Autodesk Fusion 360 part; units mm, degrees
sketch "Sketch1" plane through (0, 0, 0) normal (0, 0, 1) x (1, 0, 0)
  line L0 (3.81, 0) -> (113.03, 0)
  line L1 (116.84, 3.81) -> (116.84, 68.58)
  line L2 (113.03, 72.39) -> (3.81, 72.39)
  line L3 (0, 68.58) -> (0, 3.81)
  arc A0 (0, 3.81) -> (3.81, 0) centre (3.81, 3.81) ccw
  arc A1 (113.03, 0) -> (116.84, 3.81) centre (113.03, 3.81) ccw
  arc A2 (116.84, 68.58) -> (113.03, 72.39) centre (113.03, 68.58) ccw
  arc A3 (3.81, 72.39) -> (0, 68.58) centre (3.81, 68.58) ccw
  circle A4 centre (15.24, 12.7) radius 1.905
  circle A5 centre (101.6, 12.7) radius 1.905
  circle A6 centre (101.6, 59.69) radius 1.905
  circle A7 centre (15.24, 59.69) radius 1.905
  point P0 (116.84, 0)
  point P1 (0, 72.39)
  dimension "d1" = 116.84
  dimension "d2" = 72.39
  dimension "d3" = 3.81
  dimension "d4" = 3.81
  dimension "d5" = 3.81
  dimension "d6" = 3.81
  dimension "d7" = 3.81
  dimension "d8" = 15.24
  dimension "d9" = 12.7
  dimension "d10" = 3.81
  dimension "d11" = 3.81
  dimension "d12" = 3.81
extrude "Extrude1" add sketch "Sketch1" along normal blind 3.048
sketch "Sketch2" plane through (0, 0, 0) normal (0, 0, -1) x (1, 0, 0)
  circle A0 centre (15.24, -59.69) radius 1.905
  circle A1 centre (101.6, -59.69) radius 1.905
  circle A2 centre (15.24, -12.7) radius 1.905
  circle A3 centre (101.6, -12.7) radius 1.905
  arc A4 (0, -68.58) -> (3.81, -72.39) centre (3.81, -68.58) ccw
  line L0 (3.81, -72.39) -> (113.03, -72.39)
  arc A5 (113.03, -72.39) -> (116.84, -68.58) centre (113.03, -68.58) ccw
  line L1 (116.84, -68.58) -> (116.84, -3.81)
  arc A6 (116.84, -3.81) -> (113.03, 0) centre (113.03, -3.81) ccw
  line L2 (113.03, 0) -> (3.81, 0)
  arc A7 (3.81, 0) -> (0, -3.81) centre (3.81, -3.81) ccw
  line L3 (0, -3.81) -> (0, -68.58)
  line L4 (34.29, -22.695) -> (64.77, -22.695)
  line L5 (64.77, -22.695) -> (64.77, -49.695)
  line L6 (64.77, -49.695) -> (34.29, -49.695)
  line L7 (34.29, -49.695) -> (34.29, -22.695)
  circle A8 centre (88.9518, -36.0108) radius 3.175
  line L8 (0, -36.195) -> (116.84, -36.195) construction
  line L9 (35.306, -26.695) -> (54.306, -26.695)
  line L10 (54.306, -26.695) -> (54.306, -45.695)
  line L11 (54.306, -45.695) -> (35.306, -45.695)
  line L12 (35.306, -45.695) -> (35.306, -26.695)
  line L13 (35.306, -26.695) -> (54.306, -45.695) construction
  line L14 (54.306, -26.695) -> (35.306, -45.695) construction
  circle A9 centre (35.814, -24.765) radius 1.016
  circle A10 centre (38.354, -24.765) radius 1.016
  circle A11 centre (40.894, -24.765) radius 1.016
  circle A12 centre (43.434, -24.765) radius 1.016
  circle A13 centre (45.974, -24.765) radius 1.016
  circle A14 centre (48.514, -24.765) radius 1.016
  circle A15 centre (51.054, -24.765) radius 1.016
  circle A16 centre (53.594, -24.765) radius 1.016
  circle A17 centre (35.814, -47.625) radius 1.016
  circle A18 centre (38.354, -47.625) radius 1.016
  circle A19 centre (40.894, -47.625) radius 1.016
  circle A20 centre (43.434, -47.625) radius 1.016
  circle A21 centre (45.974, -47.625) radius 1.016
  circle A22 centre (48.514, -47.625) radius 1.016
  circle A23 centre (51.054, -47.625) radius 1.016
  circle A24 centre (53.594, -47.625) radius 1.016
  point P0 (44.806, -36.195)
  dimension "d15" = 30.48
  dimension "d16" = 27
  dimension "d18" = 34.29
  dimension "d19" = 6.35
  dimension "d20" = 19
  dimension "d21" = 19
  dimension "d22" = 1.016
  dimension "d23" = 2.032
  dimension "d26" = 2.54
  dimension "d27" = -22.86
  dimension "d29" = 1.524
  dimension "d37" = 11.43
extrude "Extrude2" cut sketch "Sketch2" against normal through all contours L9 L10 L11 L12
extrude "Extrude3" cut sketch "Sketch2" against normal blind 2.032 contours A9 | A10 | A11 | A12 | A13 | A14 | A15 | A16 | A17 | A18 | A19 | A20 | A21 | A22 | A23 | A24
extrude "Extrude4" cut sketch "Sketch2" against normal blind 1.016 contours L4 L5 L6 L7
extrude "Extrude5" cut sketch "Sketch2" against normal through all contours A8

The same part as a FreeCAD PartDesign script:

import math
import FreeCAD as App
import Part
import Sketcher

V = App.Vector
Q = App.Units.Quantity

doc = App.newDocument("Part")
body = doc.addObject("PartDesign::Body", "Body")

# Sketch on XY plane
sketch1 = body.newObject("Sketcher::SketchObject", "Sketch")
sketch1.AttachmentSupport = (doc.getObject("XY_Plane"), [""])
sketch1.MapMode = "FlatFace"
sketch1.addGeometry([
    Part.ArcOfCircle(Part.Circle(V(3.8, 3.8, 0), V(0, 0, 1), 3.8), math.radians(180), math.radians(270)),  # 0
    Part.LineSegment(V(3.8, 0, 0), V(113, 0, 0)),  # 1
    Part.ArcOfCircle(Part.Circle(V(113, 3.8, 0), V(0, 0, 1), 3.8), math.radians(-90), math.radians(0)),  # 2
    Part.LineSegment(V(116.8, 3.8, 0), V(116.8, 68.6, 0)),  # 3
    Part.ArcOfCircle(Part.Circle(V(113, 68.6, 0), V(0, 0, 1), 3.8), math.radians(0), math.radians(90)),  # 4
    Part.LineSegment(V(113, 72.4, 0), V(3.8, 72.4, 0)),  # 5
    Part.ArcOfCircle(Part.Circle(V(3.8, 68.6, 0), V(0, 0, 1), 3.8), math.radians(90), math.radians(180)),  # 6
    Part.LineSegment(V(0, 68.6, 0), V(0, 3.8, 0)),  # 7
    Part.Circle(V(15.2, 12.7, 0), V(0, 0, 1), 1.9),  # 8
    Part.Circle(V(101.6, 12.7, 0), V(0, 0, 1), 1.9),  # 9
    Part.Circle(V(15.2, 59.7, 0), V(0, 0, 1), 1.9),  # 10
    Part.Circle(V(101.6, 59.7, 0), V(0, 0, 1), 1.9),  # 11
], False)
sketch1.addConstraint([
    Sketcher.Constraint("Tangent", 0, 2, 1, 1),
    Sketcher.Constraint("Tangent", 1, 2, 2, 1),
    Sketcher.Constraint("Tangent", 2, 2, 3, 1),
    Sketcher.Constraint("Tangent", 3, 2, 4, 1),
    Sketcher.Constraint("Tangent", 4, 2, 5, 1),
    Sketcher.Constraint("Tangent", 5, 2, 6, 1),
    Sketcher.Constraint("Tangent", 6, 2, 7, 1),
    Sketcher.Constraint("Tangent", 7, 2, 0, 1),
    Sketcher.Constraint("Horizontal", 1),
    Sketcher.Constraint("Vertical", 3),
    Sketcher.Constraint("Horizontal", 5),
    Sketcher.Constraint("Vertical", 7),
    Sketcher.Constraint("Equal", 0, 2),
    Sketcher.Constraint("Equal", 2, 4),
    Sketcher.Constraint("Equal", 4, 6),
    Sketcher.Constraint("Equal", 8, 9),
    Sketcher.Constraint("Equal", 9, 10),
    Sketcher.Constraint("Equal", 10, 11),
    Sketcher.Constraint("PointOnObject", 0, 2, -1),
    Sketcher.Constraint("PointOnObject", 6, 2, -2),
    Sketcher.Constraint("Horizontal", 8, 3, 9, 3),
    Sketcher.Constraint("Horizontal", 10, 3, 11, 3),
    Sketcher.Constraint("Vertical", 8, 3, 10, 3),
    Sketcher.Constraint("Vertical", 9, 3, 11, 3),
    Sketcher.Constraint("Diameter", 8, Q("0.15 in")),
    Sketcher.Constraint("Radius", 0, Q("0.15 in")),
    Sketcher.Constraint("DistanceX", -1, 1, 8, 3, Q("0.6 in")),
    Sketcher.Constraint("DistanceY", -1, 1, 8, 3, Q("0.5 in")),
    Sketcher.Constraint("DistanceX", -1, 1, 2, 2, Q("4.6 in")),
    Sketcher.Constraint("DistanceX", 9, 3, 2, 2, Q("0.6 in")),
    Sketcher.Constraint("DistanceY", 11, 3, 4, 2, Q("0.5 in")),
    Sketcher.Constraint("DistanceY", -1, 1, 4, 2, Q("2.85 in")),
])
pad1 = body.newObject("PartDesign::Pad", "Pad")
pad1.Profile = sketch1
pad1.Length = Q("0.12 in")

# Sketch on XY plane
sketch2 = body.newObject("Sketcher::SketchObject", "Sketch001")
sketch2.AttachmentSupport = (doc.getObject("XY_Plane"), [""])
sketch2.MapMode = "FlatFace"
sketch2.addGeometry([
    Part.LineSegment(V(54, 27, 0), V(35, 27, 0)),
    Part.LineSegment(V(35, 27, 0), V(35, 46, 0)),
    Part.LineSegment(V(35, 46, 0), V(54, 46, 0)),
    Part.LineSegment(V(54, 46, 0), V(54, 27, 0)),
], False)
sketch2.addConstraint([
    Sketcher.Constraint("Coincident", 0, 2, 1, 1),
    Sketcher.Constraint("Coincident", 1, 2, 2, 1),
    Sketcher.Constraint("Coincident", 2, 2, 3, 1),
    Sketcher.Constraint("Coincident", 3, 2, 0, 1),
    Sketcher.Constraint("Horizontal", 0),
    Sketcher.Constraint("Vertical", 1),
    Sketcher.Constraint("Horizontal", 2),
    Sketcher.Constraint("Vertical", 3),
    Sketcher.Constraint("Equal", 2, 1),
    Sketcher.Constraint("DistanceX", 0, 2, 0, 1, Q("19 mm")),
    Sketcher.Constraint("DistanceX", -1, 1, 0, 2, Q("1.39 in")),
    Sketcher.Constraint("DistanceY", -1, 1, 0, 2, Q("26.695 mm")),
])
pocket1 = body.newObject("PartDesign::Pocket", "Pocket")
pocket1.Profile = sketch2
pocket1.Type = "ThroughAll"
pocket1.Reversed = True

# Sketch on XY plane
sketch3 = body.newObject("Sketcher::SketchObject", "Sketch002")
sketch3.AttachmentSupport = (doc.getObject("XY_Plane"), [""])
sketch3.MapMode = "FlatFace"
sketch3.addGeometry([
    Part.Circle(V(35.8, 24.8, 0), V(0, 0, 1), 1),  # 0
    Part.Circle(V(38.4, 24.8, 0), V(0, 0, 1), 1),  # 1
    Part.Circle(V(40.9, 24.8, 0), V(0, 0, 1), 1),  # 2
    Part.Circle(V(43.4, 24.8, 0), V(0, 0, 1), 1),  # 3
    Part.Circle(V(46, 24.8, 0), V(0, 0, 1), 1),  # 4
    Part.Circle(V(48.5, 24.8, 0), V(0, 0, 1), 1),  # 5
    Part.Circle(V(51.1, 24.8, 0), V(0, 0, 1), 1),  # 6
    Part.Circle(V(53.6, 24.8, 0), V(0, 0, 1), 1),  # 7
    Part.Circle(V(35.8, 47.6, 0), V(0, 0, 1), 1),  # 8
    Part.Circle(V(38.4, 47.6, 0), V(0, 0, 1), 1),  # 9
    Part.Circle(V(40.9, 47.6, 0), V(0, 0, 1), 1),  # 10
    Part.Circle(V(43.4, 47.6, 0), V(0, 0, 1), 1),  # 11
    Part.Circle(V(46, 47.6, 0), V(0, 0, 1), 1),  # 12
    Part.Circle(V(48.5, 47.6, 0), V(0, 0, 1), 1),  # 13
    Part.Circle(V(51.1, 47.6, 0), V(0, 0, 1), 1),  # 14
    Part.Circle(V(53.6, 47.6, 0), V(0, 0, 1), 1),  # 15
], False)
sketch3.addConstraint([
    Sketcher.Constraint("Equal", 0, 1),
    Sketcher.Constraint("Equal", 1, 2),
    Sketcher.Constraint("Equal", 2, 3),
    Sketcher.Constraint("Equal", 3, 4),
    Sketcher.Constraint("Equal", 4, 5),
    Sketcher.Constraint("Equal", 5, 6),
    Sketcher.Constraint("Equal", 6, 7),
    Sketcher.Constraint("Equal", 7, 8),
    Sketcher.Constraint("Equal", 8, 9),
    Sketcher.Constraint("Equal", 9, 10),
    Sketcher.Constraint("Equal", 10, 11),
    Sketcher.Constraint("Equal", 11, 12),
    Sketcher.Constraint("Equal", 12, 13),
    Sketcher.Constraint("Equal", 13, 14),
    Sketcher.Constraint("Equal", 14, 15),
    Sketcher.Constraint("Horizontal", 0, 3, 1, 3),
    Sketcher.Constraint("Horizontal", 1, 3, 2, 3),
    Sketcher.Constraint("Horizontal", 2, 3, 3, 3),
    Sketcher.Constraint("Horizontal", 3, 3, 4, 3),
    Sketcher.Constraint("Horizontal", 4, 3, 5, 3),
    Sketcher.Constraint("Horizontal", 5, 3, 6, 3),
    Sketcher.Constraint("Horizontal", 6, 3, 7, 3),
    Sketcher.Constraint("Horizontal", 8, 3, 9, 3),
    Sketcher.Constraint("Horizontal", 9, 3, 10, 3),
    Sketcher.Constraint("Horizontal", 10, 3, 11, 3),
    Sketcher.Constraint("Horizontal", 11, 3, 12, 3),
    Sketcher.Constraint("Horizontal", 12, 3, 13, 3),
    Sketcher.Constraint("Horizontal", 13, 3, 14, 3),
    Sketcher.Constraint("Horizontal", 14, 3, 15, 3),
    Sketcher.Constraint("Vertical", 0, 3, 8, 3),
    Sketcher.Constraint("Vertical", 1, 3, 9, 3),
    Sketcher.Constraint("Vertical", 2, 3, 10, 3),
    Sketcher.Constraint("Vertical", 3, 3, 11, 3),
    Sketcher.Constraint("Vertical", 4, 3, 12, 3),
    Sketcher.Constraint("Vertical", 5, 3, 13, 3),
    Sketcher.Constraint("Vertical", 6, 3, 14, 3),
    Sketcher.Constraint("Vertical", 7, 3, 15, 3),
    Sketcher.Constraint("Diameter", 0, Q("0.08 in")),
    Sketcher.Constraint("DistanceX", 0, 3, 1, 3, Q("0.1 in")),
    Sketcher.Constraint("DistanceX", 1, 3, 2, 3, Q("0.1 in")),
    Sketcher.Constraint("DistanceX", 2, 3, 3, 3, Q("0.1 in")),
    Sketcher.Constraint("DistanceX", 3, 3, 4, 3, Q("0.1 in")),
    Sketcher.Constraint("DistanceX", 4, 3, 5, 3, Q("0.1 in")),
    Sketcher.Constraint("DistanceX", 5, 3, 6, 3, Q("0.1 in")),
    Sketcher.Constraint("DistanceX", 6, 3, 7, 3, Q("0.1 in")),
    Sketcher.Constraint("DistanceY", 0, 3, 8, 3, Q("0.9 in")),
    Sketcher.Constraint("DistanceX", -1, 1, 0, 3, Q("1.41 in")),
    Sketcher.Constraint("DistanceY", -1, 1, 0, 3, Q("0.975 in")),
])
pocket2 = body.newObject("PartDesign::Pocket", "Pocket001")
pocket2.Profile = sketch3
pocket2.Length = Q("0.08 in")
pocket2.Reversed = True

# Sketch on XY plane
sketch4 = body.newObject("Sketcher::SketchObject", "Sketch003")
sketch4.AttachmentSupport = (doc.getObject("XY_Plane"), [""])
sketch4.MapMode = "FlatFace"
sketch4.addGeometry([
    Part.LineSegment(V(64.8, 22.7, 0), V(34.3, 22.7, 0)),  # 0
    Part.LineSegment(V(34.3, 22.7, 0), V(34.3, 49.7, 0)),  # 1
    Part.LineSegment(V(34.3, 49.7, 0), V(64.8, 49.7, 0)),  # 2
    Part.LineSegment(V(64.8, 49.7, 0), V(64.8, 22.7, 0)),  # 3
    Part.Circle(V(35.8, 47.6, 0), V(0, 0, 1), 1),  # 4
    Part.Circle(V(38.4, 47.6, 0), V(0, 0, 1), 1),  # 5
    Part.Circle(V(40.9, 47.6, 0), V(0, 0, 1), 1),  # 6
    Part.Circle(V(43.4, 47.6, 0), V(0, 0, 1), 1),  # 7
    Part.Circle(V(46, 47.6, 0), V(0, 0, 1), 1),  # 8
    Part.Circle(V(48.5, 47.6, 0), V(0, 0, 1), 1),  # 9
    Part.Circle(V(51.1, 47.6, 0), V(0, 0, 1), 1),  # 10
    Part.Circle(V(53.6, 47.6, 0), V(0, 0, 1), 1),  # 11
    Part.LineSegment(V(35.3, 45.7, 0), V(35.3, 26.7, 0)),  # 12
    Part.LineSegment(V(35.3, 26.7, 0), V(54.3, 26.7, 0)),  # 13
    Part.LineSegment(V(54.3, 26.7, 0), V(54.3, 45.7, 0)),  # 14
    Part.LineSegment(V(54.3, 45.7, 0), V(35.3, 45.7, 0)),  # 15
    Part.Circle(V(35.8, 24.8, 0), V(0, 0, 1), 1),  # 16
    Part.Circle(V(38.4, 24.8, 0), V(0, 0, 1), 1),  # 17
    Part.Circle(V(40.9, 24.8, 0), V(0, 0, 1), 1),  # 18
    Part.Circle(V(43.4, 24.8, 0), V(0, 0, 1), 1),  # 19
    Part.Circle(V(46, 24.8, 0), V(0, 0, 1), 1),  # 20
    Part.Circle(V(48.5, 24.8, 0), V(0, 0, 1), 1),  # 21
    Part.Circle(V(51.1, 24.8, 0), V(0, 0, 1), 1),  # 22
    Part.Circle(V(53.6, 24.8, 0), V(0, 0, 1), 1),  # 23
], False)
sketch4.addConstraint([
    Sketcher.Constraint("Coincident", 0, 2, 1, 1),
    Sketcher.Constraint("Coincident", 1, 2, 2, 1),
    Sketcher.Constraint("Coincident", 2, 2, 3, 1),
    Sketcher.Constraint("Coincident", 3, 2, 0, 1),
    Sketcher.Constraint("Coincident", 12, 2, 13, 1),
    Sketcher.Constraint("Coincident", 13, 2, 14, 1),
    Sketcher.Constraint("Coincident", 14, 2, 15, 1),
    Sketcher.Constraint("Coincident", 15, 2, 12, 1),
    Sketcher.Constraint("Horizontal", 0),
    Sketcher.Constraint("Vertical", 1),
    Sketcher.Constraint("Horizontal", 2),
    Sketcher.Constraint("Vertical", 3),
    Sketcher.Constraint("Vertical", 12),
    Sketcher.Constraint("Horizontal", 13),
    Sketcher.Constraint("Vertical", 14),
    Sketcher.Constraint("Horizontal", 15),
    Sketcher.Constraint("Equal", 4, 5),
    Sketcher.Constraint("Equal", 5, 6),
    Sketcher.Constraint("Equal", 6, 7),
    Sketcher.Constraint("Equal", 7, 8),
    Sketcher.Constraint("Equal", 8, 9),
    Sketcher.Constraint("Equal", 9, 10),
    Sketcher.Constraint("Equal", 10, 11),
    Sketcher.Constraint("Equal", 11, 16),
    Sketcher.Constraint("Equal", 16, 17),
    Sketcher.Constraint("Equal", 17, 18),
    Sketcher.Constraint("Equal", 18, 19),
    Sketcher.Constraint("Equal", 19, 20),
    Sketcher.Constraint("Equal", 20, 21),
    Sketcher.Constraint("Equal", 21, 22),
    Sketcher.Constraint("Equal", 22, 23),
    Sketcher.Constraint("Horizontal", 4, 3, 5, 3),
    Sketcher.Constraint("Horizontal", 5, 3, 6, 3),
    Sketcher.Constraint("Horizontal", 6, 3, 7, 3),
    Sketcher.Constraint("Horizontal", 7, 3, 8, 3),
    Sketcher.Constraint("Horizontal", 8, 3, 9, 3),
    Sketcher.Constraint("Horizontal", 9, 3, 10, 3),
    Sketcher.Constraint("Horizontal", 10, 3, 11, 3),
    Sketcher.Constraint("Horizontal", 16, 3, 17, 3),
    Sketcher.Constraint("Horizontal", 17, 3, 18, 3),
    Sketcher.Constraint("Horizontal", 18, 3, 19, 3),
    Sketcher.Constraint("Horizontal", 19, 3, 20, 3),
    Sketcher.Constraint("Horizontal", 20, 3, 21, 3),
    Sketcher.Constraint("Horizontal", 21, 3, 22, 3),
    Sketcher.Constraint("Horizontal", 22, 3, 23, 3),
    Sketcher.Constraint("Vertical", 4, 3, 16, 3),
    Sketcher.Constraint("Vertical", 5, 3, 17, 3),
    Sketcher.Constraint("Vertical", 6, 3, 18, 3),
    Sketcher.Constraint("Vertical", 7, 3, 19, 3),
    Sketcher.Constraint("Vertical", 8, 3, 20, 3),
    Sketcher.Constraint("Vertical", 9, 3, 21, 3),
    Sketcher.Constraint("Vertical", 10, 3, 22, 3),
    Sketcher.Constraint("Vertical", 11, 3, 23, 3),
    Sketcher.Constraint("Equal", 15, 12),
    Sketcher.Constraint("Diameter", 4, Q("0.08 in")),
    Sketcher.Constraint("DistanceX", 0, 2, 0, 1, Q("1.2 in")),
    Sketcher.Constraint("DistanceX", 4, 3, 5, 3, Q("0.1 in")),
    Sketcher.Constraint("DistanceX", 5, 3, 6, 3, Q("0.1 in")),
    Sketcher.Constraint("DistanceX", 6, 3, 7, 3, Q("0.1 in")),
    Sketcher.Constraint("DistanceX", 7, 3, 8, 3, Q("0.1 in")),
    Sketcher.Constraint("DistanceX", 8, 3, 9, 3, Q("0.1 in")),
    Sketcher.Constraint("DistanceX", 9, 3, 10, 3, Q("0.1 in")),
    Sketcher.Constraint("DistanceX", 10, 3, 11, 3, Q("0.1 in")),
    Sketcher.Constraint("DistanceY", 16, 3, 4, 3, Q("0.9 in")),
    Sketcher.Constraint("DistanceY", 1, 1, 1, 2, Q("1.063 in")),
    Sketcher.Constraint("DistanceX", -1, 1, 0, 2, Q("1.35 in")),
    Sketcher.Constraint("DistanceX", 0, 2, 16, 3, Q("0.06 in")),
    Sketcher.Constraint("DistanceX", 0, 2, 12, 2, Q("0.04 in")),
    Sketcher.Constraint("DistanceX", 13, 1, 13, 2, Q("19 mm")),
    Sketcher.Constraint("DistanceY", -1, 1, 4, 3, Q("1.875 in")),
    Sketcher.Constraint("DistanceY", -1, 1, 0, 2, Q("0.8935 in")),
    Sketcher.Constraint("DistanceY", -1, 1, 12, 2, Q("26.695 mm")),
])
pocket3 = body.newObject("PartDesign::Pocket", "Pocket002")
pocket3.Profile = sketch4
pocket3.Length = Q("0.04 in")
pocket3.Reversed = True

# Sketch on XY plane
sketch5 = body.newObject("Sketcher::SketchObject", "Sketch004")
sketch5.AttachmentSupport = (doc.getObject("XY_Plane"), [""])
sketch5.MapMode = "FlatFace"
sketch5.addGeometry(Part.Circle(V(89, 36, 0), V(0, 0, 1), 3.2), False)
sketch5.addConstraint([
    Sketcher.Constraint("Diameter", 0, Q("0.25 in")),
    Sketcher.Constraint("DistanceX", -1, 1, 0, 3, Q("88.9518 mm")),
    Sketcher.Constraint("DistanceY", -1, 1, 0, 3, Q("36.0108 mm")),
])
pocket4 = body.newObject("PartDesign::Pocket", "Pocket003")
pocket4.Profile = sketch5
pocket4.Type = "ThroughAll"
pocket4.Reversed = True

doc.recompute()
